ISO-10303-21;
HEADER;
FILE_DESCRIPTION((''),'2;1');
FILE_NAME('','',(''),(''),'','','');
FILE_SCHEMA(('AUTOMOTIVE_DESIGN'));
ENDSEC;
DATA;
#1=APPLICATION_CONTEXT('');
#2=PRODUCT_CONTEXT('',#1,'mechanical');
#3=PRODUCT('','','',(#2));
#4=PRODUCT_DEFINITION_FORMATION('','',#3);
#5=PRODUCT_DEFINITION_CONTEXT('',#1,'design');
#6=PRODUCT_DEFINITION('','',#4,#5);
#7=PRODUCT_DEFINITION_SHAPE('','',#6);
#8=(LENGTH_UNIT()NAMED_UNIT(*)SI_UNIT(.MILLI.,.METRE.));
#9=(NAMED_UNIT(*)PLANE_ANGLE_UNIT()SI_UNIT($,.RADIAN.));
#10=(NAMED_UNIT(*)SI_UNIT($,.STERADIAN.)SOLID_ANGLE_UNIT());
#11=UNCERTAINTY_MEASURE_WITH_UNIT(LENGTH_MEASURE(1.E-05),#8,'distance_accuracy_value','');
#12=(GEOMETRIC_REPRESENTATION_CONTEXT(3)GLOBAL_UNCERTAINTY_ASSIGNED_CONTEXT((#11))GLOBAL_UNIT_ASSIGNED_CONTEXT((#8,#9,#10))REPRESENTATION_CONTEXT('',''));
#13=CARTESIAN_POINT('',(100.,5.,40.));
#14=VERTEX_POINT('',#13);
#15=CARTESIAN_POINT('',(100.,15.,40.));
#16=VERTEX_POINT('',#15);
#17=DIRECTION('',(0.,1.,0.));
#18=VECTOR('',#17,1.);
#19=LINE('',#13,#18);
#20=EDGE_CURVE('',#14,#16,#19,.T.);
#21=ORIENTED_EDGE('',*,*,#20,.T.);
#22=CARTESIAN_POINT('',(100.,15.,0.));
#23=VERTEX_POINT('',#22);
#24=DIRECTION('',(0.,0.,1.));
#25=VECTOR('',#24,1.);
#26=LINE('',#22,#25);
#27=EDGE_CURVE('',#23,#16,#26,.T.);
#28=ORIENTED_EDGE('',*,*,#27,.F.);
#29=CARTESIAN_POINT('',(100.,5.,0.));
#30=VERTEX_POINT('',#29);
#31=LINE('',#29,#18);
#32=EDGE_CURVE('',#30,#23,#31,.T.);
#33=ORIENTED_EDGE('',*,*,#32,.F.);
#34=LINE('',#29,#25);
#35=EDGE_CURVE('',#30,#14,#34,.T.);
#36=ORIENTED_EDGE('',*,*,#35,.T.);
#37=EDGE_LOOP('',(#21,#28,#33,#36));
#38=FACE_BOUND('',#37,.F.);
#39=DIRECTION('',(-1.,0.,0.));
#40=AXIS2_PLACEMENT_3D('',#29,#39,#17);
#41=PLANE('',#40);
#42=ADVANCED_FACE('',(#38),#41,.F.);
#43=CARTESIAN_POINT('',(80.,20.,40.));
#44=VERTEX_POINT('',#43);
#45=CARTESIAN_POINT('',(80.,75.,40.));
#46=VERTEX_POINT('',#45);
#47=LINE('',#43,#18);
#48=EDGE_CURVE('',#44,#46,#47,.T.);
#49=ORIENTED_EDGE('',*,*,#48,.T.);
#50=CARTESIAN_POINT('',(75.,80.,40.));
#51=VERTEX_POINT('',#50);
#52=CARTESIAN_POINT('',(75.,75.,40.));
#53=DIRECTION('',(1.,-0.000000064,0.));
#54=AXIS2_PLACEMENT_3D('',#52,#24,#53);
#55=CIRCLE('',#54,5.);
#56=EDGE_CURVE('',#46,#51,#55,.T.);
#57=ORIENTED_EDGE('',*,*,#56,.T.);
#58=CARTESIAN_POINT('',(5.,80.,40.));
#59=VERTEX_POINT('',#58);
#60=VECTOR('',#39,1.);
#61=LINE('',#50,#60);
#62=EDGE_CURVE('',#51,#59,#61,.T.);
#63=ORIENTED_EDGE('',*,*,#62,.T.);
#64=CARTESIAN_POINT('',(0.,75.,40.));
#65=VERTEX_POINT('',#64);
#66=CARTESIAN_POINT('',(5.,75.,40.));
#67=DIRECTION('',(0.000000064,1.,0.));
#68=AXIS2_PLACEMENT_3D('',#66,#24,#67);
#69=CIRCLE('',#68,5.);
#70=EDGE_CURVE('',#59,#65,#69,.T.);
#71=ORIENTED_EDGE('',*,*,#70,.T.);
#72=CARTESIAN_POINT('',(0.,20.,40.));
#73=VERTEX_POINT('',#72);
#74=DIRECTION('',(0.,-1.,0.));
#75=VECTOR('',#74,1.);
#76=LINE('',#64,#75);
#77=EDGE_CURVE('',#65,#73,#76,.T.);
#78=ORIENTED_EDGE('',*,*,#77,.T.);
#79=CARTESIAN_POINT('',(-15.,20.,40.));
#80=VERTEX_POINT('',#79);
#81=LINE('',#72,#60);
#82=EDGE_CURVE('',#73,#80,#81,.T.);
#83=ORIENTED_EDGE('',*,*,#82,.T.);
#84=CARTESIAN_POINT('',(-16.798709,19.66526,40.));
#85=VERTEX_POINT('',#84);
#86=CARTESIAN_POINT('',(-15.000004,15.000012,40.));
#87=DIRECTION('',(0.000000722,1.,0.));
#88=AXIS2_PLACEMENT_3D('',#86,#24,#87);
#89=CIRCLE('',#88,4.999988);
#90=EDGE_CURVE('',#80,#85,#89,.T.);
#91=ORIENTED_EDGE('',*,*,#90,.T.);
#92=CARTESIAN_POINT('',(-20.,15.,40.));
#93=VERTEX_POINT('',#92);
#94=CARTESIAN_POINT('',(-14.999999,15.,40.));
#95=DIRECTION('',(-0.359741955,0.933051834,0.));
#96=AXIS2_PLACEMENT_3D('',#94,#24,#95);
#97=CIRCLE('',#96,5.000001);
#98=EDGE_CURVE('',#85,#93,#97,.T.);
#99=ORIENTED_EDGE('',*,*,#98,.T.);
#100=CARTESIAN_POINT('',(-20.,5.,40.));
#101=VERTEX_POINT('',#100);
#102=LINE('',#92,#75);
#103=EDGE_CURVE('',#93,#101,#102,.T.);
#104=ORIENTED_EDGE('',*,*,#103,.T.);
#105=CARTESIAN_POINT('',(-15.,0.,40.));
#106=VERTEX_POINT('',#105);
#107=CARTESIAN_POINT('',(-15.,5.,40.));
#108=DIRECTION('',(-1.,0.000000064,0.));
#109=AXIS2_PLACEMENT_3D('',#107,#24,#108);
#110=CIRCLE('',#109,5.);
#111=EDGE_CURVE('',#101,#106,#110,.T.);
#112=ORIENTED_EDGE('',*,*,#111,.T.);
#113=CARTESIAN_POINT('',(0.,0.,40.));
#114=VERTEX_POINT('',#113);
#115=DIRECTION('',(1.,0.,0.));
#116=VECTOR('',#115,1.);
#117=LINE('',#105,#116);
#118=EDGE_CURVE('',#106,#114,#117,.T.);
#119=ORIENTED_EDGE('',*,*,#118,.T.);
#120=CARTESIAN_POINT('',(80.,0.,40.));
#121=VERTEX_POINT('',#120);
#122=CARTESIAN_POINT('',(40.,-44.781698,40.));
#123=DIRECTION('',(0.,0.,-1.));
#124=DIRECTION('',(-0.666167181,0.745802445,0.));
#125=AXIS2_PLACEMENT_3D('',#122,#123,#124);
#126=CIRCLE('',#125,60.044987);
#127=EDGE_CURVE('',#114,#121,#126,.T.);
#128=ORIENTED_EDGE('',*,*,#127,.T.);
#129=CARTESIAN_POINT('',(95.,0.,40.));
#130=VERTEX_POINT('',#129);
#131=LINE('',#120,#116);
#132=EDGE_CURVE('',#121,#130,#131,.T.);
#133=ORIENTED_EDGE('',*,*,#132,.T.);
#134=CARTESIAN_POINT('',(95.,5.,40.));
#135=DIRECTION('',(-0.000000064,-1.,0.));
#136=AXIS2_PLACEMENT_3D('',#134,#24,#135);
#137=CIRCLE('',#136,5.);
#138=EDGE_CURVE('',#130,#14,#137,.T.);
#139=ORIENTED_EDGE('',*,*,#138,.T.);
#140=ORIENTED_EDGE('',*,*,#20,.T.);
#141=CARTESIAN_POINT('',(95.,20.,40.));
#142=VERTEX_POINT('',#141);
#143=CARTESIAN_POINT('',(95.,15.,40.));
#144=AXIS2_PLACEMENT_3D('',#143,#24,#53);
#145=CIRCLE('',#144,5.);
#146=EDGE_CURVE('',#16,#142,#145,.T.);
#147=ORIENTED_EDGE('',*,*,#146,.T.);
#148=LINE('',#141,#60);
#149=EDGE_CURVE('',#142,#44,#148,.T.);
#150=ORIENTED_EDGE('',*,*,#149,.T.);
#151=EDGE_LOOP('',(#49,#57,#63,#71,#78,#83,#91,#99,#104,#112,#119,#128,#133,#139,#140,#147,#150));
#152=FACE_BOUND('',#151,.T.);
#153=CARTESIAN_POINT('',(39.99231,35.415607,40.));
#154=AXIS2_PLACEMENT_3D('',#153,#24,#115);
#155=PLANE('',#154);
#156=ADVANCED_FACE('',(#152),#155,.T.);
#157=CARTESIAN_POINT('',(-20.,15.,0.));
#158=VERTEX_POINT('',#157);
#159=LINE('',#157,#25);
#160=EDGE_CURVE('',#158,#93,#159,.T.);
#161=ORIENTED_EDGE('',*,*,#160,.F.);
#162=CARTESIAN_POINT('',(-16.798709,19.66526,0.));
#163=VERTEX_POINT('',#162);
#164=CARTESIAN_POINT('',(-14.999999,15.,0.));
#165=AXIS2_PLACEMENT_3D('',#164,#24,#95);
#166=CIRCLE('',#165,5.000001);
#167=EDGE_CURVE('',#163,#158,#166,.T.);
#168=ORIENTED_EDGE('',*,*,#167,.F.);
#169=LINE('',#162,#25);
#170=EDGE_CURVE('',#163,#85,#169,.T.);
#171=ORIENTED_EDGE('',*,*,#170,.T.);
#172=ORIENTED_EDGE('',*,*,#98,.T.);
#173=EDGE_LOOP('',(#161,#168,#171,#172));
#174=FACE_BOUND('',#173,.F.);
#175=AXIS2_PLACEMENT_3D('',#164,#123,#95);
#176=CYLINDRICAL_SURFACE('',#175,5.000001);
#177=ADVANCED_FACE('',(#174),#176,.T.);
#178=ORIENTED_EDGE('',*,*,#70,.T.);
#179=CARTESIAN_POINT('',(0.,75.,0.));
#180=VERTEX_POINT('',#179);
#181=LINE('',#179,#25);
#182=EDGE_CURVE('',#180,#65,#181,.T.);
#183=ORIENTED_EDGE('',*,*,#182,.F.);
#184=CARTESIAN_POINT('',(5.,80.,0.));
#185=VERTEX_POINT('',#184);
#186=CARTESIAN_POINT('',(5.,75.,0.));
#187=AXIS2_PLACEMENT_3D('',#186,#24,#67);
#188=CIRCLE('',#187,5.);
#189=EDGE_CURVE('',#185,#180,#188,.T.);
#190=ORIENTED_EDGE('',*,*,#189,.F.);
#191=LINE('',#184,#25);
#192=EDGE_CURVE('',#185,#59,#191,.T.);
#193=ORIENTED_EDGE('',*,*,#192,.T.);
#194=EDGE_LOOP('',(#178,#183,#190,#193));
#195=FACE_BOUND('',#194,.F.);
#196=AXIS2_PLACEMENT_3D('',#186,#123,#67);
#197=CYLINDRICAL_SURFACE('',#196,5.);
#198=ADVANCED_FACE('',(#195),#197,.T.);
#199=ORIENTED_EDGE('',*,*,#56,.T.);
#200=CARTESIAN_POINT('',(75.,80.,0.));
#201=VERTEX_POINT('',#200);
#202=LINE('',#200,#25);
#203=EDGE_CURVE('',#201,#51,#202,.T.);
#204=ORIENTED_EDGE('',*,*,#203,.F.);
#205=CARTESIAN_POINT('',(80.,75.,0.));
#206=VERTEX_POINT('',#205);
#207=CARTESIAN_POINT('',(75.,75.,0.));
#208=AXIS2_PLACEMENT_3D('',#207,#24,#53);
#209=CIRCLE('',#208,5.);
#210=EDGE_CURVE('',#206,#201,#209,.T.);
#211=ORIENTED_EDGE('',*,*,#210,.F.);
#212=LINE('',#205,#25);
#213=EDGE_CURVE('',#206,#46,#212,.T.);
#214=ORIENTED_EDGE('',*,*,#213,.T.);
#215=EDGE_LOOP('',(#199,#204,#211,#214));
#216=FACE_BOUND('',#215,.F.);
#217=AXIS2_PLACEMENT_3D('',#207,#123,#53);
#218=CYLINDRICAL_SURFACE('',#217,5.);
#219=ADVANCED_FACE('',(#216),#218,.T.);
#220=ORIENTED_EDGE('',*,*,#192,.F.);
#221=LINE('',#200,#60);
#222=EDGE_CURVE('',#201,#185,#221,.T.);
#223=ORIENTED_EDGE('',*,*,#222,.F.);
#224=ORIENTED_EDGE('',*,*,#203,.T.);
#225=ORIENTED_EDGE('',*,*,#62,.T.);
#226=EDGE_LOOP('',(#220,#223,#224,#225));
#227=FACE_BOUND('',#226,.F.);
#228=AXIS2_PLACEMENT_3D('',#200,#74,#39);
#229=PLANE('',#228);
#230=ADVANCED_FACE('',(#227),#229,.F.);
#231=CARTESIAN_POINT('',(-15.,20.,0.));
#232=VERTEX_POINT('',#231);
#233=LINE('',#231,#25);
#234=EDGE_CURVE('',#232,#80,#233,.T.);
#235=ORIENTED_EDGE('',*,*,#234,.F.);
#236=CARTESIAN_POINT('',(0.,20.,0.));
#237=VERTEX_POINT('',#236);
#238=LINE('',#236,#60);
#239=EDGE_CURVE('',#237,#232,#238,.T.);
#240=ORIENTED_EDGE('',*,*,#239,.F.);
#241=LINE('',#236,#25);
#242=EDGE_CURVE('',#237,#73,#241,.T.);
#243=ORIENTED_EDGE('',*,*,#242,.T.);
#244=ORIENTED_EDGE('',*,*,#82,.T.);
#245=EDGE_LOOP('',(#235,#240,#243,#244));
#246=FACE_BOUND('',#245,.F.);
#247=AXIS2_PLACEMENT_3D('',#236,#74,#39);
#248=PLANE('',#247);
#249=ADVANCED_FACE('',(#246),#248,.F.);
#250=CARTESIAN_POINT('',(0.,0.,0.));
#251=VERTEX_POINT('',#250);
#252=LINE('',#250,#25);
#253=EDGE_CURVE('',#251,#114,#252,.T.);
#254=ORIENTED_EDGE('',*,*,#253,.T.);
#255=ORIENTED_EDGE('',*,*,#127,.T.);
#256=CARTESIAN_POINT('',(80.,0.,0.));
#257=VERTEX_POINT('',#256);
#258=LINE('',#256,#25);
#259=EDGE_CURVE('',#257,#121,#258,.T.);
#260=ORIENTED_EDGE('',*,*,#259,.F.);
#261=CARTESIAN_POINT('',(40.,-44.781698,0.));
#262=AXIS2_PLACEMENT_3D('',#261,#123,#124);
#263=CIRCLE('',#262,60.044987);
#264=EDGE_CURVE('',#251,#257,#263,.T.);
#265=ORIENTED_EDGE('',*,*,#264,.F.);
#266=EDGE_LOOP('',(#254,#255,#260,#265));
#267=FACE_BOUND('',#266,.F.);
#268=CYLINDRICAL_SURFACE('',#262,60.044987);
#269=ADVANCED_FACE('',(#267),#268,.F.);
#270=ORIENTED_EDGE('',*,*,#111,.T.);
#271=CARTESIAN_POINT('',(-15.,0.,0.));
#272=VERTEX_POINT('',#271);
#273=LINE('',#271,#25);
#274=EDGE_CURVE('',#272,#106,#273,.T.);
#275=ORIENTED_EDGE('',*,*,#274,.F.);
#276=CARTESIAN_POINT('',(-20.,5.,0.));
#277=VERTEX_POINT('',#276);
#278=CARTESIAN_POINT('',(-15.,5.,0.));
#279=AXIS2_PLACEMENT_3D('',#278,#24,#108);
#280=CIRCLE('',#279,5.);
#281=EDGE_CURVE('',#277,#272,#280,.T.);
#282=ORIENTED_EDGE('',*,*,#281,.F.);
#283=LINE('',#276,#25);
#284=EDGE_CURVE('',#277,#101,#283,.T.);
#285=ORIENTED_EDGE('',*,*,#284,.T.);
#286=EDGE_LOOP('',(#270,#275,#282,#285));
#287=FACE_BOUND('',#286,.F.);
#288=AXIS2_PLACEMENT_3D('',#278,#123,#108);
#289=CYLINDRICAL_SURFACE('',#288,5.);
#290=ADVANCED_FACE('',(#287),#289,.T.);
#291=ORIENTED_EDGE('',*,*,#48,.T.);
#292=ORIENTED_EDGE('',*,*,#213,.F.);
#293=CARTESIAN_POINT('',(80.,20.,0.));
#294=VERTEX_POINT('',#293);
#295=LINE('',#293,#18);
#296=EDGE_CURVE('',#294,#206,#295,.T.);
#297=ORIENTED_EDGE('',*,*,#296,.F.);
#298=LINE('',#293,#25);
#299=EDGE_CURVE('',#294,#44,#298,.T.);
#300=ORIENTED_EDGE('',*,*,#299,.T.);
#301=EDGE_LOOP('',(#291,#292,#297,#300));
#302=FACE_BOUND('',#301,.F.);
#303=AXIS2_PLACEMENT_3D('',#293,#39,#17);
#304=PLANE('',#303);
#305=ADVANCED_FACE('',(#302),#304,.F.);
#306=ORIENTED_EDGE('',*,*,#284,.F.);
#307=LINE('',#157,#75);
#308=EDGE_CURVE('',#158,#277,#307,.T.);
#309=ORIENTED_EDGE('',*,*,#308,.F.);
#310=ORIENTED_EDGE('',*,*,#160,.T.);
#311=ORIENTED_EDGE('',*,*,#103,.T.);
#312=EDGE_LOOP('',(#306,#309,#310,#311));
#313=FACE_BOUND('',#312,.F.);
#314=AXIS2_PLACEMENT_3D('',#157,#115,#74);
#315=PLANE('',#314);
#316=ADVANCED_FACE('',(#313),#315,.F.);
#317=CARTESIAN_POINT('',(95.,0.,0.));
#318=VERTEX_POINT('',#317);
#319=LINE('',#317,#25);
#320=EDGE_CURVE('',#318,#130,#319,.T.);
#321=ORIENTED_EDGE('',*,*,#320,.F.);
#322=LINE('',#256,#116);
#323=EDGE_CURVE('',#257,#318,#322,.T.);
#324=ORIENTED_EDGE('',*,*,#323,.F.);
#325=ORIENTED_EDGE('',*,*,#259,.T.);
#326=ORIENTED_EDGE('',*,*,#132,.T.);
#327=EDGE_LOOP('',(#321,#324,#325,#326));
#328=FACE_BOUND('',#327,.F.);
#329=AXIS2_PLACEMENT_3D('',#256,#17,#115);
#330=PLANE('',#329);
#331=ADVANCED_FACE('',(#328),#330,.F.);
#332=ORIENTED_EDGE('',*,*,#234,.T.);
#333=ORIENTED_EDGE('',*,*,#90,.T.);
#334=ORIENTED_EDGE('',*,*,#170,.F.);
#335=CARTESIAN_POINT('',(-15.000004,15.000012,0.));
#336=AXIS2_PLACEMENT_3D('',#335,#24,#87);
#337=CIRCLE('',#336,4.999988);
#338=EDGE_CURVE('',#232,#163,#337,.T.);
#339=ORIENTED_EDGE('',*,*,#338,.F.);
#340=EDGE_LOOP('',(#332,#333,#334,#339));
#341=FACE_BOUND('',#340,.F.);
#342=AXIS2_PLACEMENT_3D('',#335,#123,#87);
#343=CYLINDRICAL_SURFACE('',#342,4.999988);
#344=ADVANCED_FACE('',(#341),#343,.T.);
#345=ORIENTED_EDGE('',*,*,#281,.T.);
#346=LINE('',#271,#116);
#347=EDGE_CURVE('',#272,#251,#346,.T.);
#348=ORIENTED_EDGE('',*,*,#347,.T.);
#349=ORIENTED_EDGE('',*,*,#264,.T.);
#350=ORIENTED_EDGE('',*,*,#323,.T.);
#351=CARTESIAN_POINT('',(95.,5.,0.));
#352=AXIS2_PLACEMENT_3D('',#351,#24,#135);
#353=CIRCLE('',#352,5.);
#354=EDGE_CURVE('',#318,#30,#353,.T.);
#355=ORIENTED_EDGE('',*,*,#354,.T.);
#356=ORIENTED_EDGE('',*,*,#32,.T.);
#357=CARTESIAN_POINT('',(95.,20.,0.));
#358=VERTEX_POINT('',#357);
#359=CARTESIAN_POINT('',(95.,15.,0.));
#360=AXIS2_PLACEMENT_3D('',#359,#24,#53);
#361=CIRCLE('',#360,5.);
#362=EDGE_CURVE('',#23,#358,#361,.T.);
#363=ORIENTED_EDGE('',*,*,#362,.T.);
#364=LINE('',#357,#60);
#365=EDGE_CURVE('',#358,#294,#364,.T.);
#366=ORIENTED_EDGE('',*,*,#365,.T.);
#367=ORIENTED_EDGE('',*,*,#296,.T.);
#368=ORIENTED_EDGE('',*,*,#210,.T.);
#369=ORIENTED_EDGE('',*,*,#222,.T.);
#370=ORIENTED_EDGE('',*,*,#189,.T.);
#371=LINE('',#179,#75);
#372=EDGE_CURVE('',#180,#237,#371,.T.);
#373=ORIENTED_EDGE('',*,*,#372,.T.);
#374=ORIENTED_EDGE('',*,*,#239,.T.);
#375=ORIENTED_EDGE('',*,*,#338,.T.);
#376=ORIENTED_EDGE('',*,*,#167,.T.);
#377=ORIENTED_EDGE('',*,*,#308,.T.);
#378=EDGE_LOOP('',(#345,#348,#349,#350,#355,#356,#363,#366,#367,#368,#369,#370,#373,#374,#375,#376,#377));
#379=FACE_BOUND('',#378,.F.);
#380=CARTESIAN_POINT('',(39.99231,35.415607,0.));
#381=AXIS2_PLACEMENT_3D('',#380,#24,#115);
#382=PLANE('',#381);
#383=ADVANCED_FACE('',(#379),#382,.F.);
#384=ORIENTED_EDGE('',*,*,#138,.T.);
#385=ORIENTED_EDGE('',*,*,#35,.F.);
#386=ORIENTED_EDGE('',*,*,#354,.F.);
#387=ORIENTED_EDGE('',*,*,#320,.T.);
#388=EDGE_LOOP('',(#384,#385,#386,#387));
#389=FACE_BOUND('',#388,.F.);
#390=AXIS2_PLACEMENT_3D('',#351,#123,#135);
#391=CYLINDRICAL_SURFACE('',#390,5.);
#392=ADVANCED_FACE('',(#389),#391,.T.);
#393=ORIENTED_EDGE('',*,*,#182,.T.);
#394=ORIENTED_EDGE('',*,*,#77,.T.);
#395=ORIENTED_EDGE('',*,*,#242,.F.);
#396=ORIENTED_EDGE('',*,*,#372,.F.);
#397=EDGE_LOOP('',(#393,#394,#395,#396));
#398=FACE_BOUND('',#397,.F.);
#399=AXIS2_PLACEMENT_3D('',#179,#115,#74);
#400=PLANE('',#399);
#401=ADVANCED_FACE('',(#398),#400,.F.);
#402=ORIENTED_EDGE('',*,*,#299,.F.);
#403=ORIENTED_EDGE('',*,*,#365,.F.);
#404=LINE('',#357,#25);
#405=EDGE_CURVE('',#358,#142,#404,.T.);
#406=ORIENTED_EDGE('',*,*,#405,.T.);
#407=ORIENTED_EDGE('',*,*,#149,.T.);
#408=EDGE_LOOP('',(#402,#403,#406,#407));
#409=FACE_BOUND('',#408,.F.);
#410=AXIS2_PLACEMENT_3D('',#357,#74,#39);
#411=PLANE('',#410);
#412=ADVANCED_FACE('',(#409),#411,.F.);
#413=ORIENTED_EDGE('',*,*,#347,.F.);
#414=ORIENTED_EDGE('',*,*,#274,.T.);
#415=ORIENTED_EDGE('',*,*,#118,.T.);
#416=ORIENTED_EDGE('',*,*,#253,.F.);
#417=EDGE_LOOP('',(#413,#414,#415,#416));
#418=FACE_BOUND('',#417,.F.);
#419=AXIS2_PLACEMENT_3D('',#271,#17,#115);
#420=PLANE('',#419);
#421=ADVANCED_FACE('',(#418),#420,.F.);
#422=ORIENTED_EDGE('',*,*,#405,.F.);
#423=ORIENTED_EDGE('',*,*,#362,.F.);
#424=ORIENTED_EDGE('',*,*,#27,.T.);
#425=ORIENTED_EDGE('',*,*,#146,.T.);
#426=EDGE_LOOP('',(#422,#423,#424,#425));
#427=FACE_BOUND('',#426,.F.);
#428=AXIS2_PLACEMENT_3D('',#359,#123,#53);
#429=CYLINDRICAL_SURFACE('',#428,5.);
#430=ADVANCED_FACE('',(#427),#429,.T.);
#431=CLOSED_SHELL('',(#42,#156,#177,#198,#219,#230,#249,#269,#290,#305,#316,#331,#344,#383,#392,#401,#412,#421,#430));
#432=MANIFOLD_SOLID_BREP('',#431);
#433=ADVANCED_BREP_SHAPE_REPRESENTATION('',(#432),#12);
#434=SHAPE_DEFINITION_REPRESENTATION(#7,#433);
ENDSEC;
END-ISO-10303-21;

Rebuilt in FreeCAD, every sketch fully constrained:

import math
import FreeCAD as App
import Part
import Sketcher
from FreeCAD import Vector

doc = App.newDocument("Part")
body = doc.addObject("PartDesign::Body", "Body")

# Sketch on XY plane
sketch1 = doc.addObject("Sketcher::SketchObject", "Sketch")
body.addObject(sketch1)
sketch1.AttachmentSupport = (doc.XY_Plane, [""])
sketch1.MapMode = "FlatFace"
sketch1.addGeometry([
    Part.LineSegment(Vector(75, 80, 0), Vector(5, 80, 0)),  # 0
    Part.ArcOfCircle(Part.Circle(Vector(5, 75, 0), Vector(0, 0, 1), 5), math.radians(89.999996), math.radians(180.000004)),  # 1
    Part.LineSegment(Vector(0, 75, 0), Vector(0, 20, 0)),  # 2
    Part.LineSegment(Vector(0, 20, 0), Vector(-15, 20, 0)),  # 3
    Part.ArcOfCircle(Part.Circle(Vector(-15.000004, 15.000012, 0), Vector(0, 0, 1), 4.999988), math.radians(89.999959), math.radians(111.084349)),  # 4
    Part.ArcOfCircle(Part.Circle(Vector(-14.999999, 15, 0), Vector(0, 0, 1), 5.000001), math.radians(111.084349), math.radians(179.999997)),  # 5
    Part.LineSegment(Vector(-20, 15, 0), Vector(-20, 5, 0)),  # 6
    Part.ArcOfCircle(Part.Circle(Vector(-15, 5, 0), Vector(0, 0, 1), 5), math.radians(179.999996), math.radians(270.000004)),  # 7
    Part.LineSegment(Vector(-15, 0, 0), Vector(0, 0, 0)),  # 8
    Part.ArcOfCircle(Part.Circle(Vector(40, -44.781698, 0), Vector(0, 0, 1), 60.044987), math.radians(48.228069), math.radians(131.771931)),  # 9
    Part.LineSegment(Vector(80, 0, 0), Vector(95, 0, 0)),  # 10
    Part.ArcOfCircle(Part.Circle(Vector(95, 5, 0), Vector(0, 0, 1), 5), math.radians(-90.000004), math.radians(0.000004)),  # 11
    Part.LineSegment(Vector(100, 5, 0), Vector(100, 15, 0)),  # 12
    Part.ArcOfCircle(Part.Circle(Vector(95, 15, 0), Vector(0, 0, 1), 5), math.radians(-0.000004), math.radians(90.000004)),  # 13
    Part.LineSegment(Vector(95, 20, 0), Vector(80, 20, 0)),  # 14
    Part.LineSegment(Vector(80, 20, 0), Vector(80, 75, 0)),  # 15
    Part.ArcOfCircle(Part.Circle(Vector(75, 75, 0), Vector(0, 0, 1), 5), math.radians(-0.000004), math.radians(90.000004)),  # 16
], False)
sketch1.addConstraint([
    Sketcher.Constraint("Tangent", 0, 2, 1, 1),
    Sketcher.Constraint("Tangent", 1, 2, 2, 1),
    Sketcher.Constraint("Coincident", 2, 2, 3, 1),
    Sketcher.Constraint("Tangent", 3, 2, 4, 1),
    Sketcher.Constraint("Tangent", 4, 2, 5, 1),
    Sketcher.Constraint("Tangent", 5, 2, 6, 1),
    Sketcher.Constraint("Tangent", 6, 2, 7, 1),
    Sketcher.Constraint("Tangent", 7, 2, 8, 1),
    Sketcher.Constraint("Coincident", 8, 2, 9, 2),
    Sketcher.Constraint("Coincident", 9, 1, 10, 1),
    Sketcher.Constraint("Tangent", 10, 2, 11, 1),
    Sketcher.Constraint("Tangent", 11, 2, 12, 1),
    Sketcher.Constraint("Tangent", 12, 2, 13, 1),
    Sketcher.Constraint("Tangent", 13, 2, 14, 1),
    Sketcher.Constraint("Coincident", 14, 2, 15, 1),
    Sketcher.Constraint("Tangent", 15, 2, 16, 1),
    Sketcher.Constraint("Tangent", 16, 2, 0, 1),
    Sketcher.Constraint("Horizontal", 0),
    Sketcher.Constraint("Vertical", 2),
    Sketcher.Constraint("Horizontal", 3),
    Sketcher.Constraint("Vertical", 6),
    Sketcher.Constraint("Horizontal", 8),
    Sketcher.Constraint("Horizontal", 10),
    Sketcher.Constraint("Vertical", 12),
    Sketcher.Constraint("Horizontal", 14),
    Sketcher.Constraint("Vertical", 15),
    Sketcher.Constraint("Coincident", 8, 2, -1, 1),
    Sketcher.Constraint("Equal", 1, 5),
    Sketcher.Constraint("Equal", 5, 7),
    Sketcher.Constraint("Equal", 7, 11),
    Sketcher.Constraint("Equal", 11, 13),
    Sketcher.Constraint("Equal", 13, 16),
    Sketcher.Constraint("PointOnObject", 1, 2, -2),
    Sketcher.Constraint("PointOnObject", 9, 1, -1),
    Sketcher.Constraint("Horizontal", 5, 3, 13, 3),
    Sketcher.Constraint("Horizontal", 3, 2, 13, 2),
    Sketcher.Constraint("Vertical", 9, 1, 14, 2),
    Sketcher.Constraint("Equal", 8, 10),
    Sketcher.Constraint("Radius", 1, 5.0),
    Sketcher.Constraint("DistanceX", 0, 2, 0, 1, 70.0),
    Sketcher.Constraint("DistanceX", 3, 2, 3, 1, 15.0),
    Sketcher.Constraint("DistanceY", 2, 2, 2, 1, 55.0),
    Sketcher.Constraint("DistanceY", 6, 2, 6, 1, 10.0),
    Sketcher.Constraint("Radius", 9, 60.044987),
    Sketcher.Constraint("DistanceX", 4, 2, -1, 1, 16.798709),
])
pad1 = doc.addObject("PartDesign::Pad", "Pad")
body.addObject(pad1)
pad1.Profile = sketch1
pad1.Length = 40

doc.recompute()
